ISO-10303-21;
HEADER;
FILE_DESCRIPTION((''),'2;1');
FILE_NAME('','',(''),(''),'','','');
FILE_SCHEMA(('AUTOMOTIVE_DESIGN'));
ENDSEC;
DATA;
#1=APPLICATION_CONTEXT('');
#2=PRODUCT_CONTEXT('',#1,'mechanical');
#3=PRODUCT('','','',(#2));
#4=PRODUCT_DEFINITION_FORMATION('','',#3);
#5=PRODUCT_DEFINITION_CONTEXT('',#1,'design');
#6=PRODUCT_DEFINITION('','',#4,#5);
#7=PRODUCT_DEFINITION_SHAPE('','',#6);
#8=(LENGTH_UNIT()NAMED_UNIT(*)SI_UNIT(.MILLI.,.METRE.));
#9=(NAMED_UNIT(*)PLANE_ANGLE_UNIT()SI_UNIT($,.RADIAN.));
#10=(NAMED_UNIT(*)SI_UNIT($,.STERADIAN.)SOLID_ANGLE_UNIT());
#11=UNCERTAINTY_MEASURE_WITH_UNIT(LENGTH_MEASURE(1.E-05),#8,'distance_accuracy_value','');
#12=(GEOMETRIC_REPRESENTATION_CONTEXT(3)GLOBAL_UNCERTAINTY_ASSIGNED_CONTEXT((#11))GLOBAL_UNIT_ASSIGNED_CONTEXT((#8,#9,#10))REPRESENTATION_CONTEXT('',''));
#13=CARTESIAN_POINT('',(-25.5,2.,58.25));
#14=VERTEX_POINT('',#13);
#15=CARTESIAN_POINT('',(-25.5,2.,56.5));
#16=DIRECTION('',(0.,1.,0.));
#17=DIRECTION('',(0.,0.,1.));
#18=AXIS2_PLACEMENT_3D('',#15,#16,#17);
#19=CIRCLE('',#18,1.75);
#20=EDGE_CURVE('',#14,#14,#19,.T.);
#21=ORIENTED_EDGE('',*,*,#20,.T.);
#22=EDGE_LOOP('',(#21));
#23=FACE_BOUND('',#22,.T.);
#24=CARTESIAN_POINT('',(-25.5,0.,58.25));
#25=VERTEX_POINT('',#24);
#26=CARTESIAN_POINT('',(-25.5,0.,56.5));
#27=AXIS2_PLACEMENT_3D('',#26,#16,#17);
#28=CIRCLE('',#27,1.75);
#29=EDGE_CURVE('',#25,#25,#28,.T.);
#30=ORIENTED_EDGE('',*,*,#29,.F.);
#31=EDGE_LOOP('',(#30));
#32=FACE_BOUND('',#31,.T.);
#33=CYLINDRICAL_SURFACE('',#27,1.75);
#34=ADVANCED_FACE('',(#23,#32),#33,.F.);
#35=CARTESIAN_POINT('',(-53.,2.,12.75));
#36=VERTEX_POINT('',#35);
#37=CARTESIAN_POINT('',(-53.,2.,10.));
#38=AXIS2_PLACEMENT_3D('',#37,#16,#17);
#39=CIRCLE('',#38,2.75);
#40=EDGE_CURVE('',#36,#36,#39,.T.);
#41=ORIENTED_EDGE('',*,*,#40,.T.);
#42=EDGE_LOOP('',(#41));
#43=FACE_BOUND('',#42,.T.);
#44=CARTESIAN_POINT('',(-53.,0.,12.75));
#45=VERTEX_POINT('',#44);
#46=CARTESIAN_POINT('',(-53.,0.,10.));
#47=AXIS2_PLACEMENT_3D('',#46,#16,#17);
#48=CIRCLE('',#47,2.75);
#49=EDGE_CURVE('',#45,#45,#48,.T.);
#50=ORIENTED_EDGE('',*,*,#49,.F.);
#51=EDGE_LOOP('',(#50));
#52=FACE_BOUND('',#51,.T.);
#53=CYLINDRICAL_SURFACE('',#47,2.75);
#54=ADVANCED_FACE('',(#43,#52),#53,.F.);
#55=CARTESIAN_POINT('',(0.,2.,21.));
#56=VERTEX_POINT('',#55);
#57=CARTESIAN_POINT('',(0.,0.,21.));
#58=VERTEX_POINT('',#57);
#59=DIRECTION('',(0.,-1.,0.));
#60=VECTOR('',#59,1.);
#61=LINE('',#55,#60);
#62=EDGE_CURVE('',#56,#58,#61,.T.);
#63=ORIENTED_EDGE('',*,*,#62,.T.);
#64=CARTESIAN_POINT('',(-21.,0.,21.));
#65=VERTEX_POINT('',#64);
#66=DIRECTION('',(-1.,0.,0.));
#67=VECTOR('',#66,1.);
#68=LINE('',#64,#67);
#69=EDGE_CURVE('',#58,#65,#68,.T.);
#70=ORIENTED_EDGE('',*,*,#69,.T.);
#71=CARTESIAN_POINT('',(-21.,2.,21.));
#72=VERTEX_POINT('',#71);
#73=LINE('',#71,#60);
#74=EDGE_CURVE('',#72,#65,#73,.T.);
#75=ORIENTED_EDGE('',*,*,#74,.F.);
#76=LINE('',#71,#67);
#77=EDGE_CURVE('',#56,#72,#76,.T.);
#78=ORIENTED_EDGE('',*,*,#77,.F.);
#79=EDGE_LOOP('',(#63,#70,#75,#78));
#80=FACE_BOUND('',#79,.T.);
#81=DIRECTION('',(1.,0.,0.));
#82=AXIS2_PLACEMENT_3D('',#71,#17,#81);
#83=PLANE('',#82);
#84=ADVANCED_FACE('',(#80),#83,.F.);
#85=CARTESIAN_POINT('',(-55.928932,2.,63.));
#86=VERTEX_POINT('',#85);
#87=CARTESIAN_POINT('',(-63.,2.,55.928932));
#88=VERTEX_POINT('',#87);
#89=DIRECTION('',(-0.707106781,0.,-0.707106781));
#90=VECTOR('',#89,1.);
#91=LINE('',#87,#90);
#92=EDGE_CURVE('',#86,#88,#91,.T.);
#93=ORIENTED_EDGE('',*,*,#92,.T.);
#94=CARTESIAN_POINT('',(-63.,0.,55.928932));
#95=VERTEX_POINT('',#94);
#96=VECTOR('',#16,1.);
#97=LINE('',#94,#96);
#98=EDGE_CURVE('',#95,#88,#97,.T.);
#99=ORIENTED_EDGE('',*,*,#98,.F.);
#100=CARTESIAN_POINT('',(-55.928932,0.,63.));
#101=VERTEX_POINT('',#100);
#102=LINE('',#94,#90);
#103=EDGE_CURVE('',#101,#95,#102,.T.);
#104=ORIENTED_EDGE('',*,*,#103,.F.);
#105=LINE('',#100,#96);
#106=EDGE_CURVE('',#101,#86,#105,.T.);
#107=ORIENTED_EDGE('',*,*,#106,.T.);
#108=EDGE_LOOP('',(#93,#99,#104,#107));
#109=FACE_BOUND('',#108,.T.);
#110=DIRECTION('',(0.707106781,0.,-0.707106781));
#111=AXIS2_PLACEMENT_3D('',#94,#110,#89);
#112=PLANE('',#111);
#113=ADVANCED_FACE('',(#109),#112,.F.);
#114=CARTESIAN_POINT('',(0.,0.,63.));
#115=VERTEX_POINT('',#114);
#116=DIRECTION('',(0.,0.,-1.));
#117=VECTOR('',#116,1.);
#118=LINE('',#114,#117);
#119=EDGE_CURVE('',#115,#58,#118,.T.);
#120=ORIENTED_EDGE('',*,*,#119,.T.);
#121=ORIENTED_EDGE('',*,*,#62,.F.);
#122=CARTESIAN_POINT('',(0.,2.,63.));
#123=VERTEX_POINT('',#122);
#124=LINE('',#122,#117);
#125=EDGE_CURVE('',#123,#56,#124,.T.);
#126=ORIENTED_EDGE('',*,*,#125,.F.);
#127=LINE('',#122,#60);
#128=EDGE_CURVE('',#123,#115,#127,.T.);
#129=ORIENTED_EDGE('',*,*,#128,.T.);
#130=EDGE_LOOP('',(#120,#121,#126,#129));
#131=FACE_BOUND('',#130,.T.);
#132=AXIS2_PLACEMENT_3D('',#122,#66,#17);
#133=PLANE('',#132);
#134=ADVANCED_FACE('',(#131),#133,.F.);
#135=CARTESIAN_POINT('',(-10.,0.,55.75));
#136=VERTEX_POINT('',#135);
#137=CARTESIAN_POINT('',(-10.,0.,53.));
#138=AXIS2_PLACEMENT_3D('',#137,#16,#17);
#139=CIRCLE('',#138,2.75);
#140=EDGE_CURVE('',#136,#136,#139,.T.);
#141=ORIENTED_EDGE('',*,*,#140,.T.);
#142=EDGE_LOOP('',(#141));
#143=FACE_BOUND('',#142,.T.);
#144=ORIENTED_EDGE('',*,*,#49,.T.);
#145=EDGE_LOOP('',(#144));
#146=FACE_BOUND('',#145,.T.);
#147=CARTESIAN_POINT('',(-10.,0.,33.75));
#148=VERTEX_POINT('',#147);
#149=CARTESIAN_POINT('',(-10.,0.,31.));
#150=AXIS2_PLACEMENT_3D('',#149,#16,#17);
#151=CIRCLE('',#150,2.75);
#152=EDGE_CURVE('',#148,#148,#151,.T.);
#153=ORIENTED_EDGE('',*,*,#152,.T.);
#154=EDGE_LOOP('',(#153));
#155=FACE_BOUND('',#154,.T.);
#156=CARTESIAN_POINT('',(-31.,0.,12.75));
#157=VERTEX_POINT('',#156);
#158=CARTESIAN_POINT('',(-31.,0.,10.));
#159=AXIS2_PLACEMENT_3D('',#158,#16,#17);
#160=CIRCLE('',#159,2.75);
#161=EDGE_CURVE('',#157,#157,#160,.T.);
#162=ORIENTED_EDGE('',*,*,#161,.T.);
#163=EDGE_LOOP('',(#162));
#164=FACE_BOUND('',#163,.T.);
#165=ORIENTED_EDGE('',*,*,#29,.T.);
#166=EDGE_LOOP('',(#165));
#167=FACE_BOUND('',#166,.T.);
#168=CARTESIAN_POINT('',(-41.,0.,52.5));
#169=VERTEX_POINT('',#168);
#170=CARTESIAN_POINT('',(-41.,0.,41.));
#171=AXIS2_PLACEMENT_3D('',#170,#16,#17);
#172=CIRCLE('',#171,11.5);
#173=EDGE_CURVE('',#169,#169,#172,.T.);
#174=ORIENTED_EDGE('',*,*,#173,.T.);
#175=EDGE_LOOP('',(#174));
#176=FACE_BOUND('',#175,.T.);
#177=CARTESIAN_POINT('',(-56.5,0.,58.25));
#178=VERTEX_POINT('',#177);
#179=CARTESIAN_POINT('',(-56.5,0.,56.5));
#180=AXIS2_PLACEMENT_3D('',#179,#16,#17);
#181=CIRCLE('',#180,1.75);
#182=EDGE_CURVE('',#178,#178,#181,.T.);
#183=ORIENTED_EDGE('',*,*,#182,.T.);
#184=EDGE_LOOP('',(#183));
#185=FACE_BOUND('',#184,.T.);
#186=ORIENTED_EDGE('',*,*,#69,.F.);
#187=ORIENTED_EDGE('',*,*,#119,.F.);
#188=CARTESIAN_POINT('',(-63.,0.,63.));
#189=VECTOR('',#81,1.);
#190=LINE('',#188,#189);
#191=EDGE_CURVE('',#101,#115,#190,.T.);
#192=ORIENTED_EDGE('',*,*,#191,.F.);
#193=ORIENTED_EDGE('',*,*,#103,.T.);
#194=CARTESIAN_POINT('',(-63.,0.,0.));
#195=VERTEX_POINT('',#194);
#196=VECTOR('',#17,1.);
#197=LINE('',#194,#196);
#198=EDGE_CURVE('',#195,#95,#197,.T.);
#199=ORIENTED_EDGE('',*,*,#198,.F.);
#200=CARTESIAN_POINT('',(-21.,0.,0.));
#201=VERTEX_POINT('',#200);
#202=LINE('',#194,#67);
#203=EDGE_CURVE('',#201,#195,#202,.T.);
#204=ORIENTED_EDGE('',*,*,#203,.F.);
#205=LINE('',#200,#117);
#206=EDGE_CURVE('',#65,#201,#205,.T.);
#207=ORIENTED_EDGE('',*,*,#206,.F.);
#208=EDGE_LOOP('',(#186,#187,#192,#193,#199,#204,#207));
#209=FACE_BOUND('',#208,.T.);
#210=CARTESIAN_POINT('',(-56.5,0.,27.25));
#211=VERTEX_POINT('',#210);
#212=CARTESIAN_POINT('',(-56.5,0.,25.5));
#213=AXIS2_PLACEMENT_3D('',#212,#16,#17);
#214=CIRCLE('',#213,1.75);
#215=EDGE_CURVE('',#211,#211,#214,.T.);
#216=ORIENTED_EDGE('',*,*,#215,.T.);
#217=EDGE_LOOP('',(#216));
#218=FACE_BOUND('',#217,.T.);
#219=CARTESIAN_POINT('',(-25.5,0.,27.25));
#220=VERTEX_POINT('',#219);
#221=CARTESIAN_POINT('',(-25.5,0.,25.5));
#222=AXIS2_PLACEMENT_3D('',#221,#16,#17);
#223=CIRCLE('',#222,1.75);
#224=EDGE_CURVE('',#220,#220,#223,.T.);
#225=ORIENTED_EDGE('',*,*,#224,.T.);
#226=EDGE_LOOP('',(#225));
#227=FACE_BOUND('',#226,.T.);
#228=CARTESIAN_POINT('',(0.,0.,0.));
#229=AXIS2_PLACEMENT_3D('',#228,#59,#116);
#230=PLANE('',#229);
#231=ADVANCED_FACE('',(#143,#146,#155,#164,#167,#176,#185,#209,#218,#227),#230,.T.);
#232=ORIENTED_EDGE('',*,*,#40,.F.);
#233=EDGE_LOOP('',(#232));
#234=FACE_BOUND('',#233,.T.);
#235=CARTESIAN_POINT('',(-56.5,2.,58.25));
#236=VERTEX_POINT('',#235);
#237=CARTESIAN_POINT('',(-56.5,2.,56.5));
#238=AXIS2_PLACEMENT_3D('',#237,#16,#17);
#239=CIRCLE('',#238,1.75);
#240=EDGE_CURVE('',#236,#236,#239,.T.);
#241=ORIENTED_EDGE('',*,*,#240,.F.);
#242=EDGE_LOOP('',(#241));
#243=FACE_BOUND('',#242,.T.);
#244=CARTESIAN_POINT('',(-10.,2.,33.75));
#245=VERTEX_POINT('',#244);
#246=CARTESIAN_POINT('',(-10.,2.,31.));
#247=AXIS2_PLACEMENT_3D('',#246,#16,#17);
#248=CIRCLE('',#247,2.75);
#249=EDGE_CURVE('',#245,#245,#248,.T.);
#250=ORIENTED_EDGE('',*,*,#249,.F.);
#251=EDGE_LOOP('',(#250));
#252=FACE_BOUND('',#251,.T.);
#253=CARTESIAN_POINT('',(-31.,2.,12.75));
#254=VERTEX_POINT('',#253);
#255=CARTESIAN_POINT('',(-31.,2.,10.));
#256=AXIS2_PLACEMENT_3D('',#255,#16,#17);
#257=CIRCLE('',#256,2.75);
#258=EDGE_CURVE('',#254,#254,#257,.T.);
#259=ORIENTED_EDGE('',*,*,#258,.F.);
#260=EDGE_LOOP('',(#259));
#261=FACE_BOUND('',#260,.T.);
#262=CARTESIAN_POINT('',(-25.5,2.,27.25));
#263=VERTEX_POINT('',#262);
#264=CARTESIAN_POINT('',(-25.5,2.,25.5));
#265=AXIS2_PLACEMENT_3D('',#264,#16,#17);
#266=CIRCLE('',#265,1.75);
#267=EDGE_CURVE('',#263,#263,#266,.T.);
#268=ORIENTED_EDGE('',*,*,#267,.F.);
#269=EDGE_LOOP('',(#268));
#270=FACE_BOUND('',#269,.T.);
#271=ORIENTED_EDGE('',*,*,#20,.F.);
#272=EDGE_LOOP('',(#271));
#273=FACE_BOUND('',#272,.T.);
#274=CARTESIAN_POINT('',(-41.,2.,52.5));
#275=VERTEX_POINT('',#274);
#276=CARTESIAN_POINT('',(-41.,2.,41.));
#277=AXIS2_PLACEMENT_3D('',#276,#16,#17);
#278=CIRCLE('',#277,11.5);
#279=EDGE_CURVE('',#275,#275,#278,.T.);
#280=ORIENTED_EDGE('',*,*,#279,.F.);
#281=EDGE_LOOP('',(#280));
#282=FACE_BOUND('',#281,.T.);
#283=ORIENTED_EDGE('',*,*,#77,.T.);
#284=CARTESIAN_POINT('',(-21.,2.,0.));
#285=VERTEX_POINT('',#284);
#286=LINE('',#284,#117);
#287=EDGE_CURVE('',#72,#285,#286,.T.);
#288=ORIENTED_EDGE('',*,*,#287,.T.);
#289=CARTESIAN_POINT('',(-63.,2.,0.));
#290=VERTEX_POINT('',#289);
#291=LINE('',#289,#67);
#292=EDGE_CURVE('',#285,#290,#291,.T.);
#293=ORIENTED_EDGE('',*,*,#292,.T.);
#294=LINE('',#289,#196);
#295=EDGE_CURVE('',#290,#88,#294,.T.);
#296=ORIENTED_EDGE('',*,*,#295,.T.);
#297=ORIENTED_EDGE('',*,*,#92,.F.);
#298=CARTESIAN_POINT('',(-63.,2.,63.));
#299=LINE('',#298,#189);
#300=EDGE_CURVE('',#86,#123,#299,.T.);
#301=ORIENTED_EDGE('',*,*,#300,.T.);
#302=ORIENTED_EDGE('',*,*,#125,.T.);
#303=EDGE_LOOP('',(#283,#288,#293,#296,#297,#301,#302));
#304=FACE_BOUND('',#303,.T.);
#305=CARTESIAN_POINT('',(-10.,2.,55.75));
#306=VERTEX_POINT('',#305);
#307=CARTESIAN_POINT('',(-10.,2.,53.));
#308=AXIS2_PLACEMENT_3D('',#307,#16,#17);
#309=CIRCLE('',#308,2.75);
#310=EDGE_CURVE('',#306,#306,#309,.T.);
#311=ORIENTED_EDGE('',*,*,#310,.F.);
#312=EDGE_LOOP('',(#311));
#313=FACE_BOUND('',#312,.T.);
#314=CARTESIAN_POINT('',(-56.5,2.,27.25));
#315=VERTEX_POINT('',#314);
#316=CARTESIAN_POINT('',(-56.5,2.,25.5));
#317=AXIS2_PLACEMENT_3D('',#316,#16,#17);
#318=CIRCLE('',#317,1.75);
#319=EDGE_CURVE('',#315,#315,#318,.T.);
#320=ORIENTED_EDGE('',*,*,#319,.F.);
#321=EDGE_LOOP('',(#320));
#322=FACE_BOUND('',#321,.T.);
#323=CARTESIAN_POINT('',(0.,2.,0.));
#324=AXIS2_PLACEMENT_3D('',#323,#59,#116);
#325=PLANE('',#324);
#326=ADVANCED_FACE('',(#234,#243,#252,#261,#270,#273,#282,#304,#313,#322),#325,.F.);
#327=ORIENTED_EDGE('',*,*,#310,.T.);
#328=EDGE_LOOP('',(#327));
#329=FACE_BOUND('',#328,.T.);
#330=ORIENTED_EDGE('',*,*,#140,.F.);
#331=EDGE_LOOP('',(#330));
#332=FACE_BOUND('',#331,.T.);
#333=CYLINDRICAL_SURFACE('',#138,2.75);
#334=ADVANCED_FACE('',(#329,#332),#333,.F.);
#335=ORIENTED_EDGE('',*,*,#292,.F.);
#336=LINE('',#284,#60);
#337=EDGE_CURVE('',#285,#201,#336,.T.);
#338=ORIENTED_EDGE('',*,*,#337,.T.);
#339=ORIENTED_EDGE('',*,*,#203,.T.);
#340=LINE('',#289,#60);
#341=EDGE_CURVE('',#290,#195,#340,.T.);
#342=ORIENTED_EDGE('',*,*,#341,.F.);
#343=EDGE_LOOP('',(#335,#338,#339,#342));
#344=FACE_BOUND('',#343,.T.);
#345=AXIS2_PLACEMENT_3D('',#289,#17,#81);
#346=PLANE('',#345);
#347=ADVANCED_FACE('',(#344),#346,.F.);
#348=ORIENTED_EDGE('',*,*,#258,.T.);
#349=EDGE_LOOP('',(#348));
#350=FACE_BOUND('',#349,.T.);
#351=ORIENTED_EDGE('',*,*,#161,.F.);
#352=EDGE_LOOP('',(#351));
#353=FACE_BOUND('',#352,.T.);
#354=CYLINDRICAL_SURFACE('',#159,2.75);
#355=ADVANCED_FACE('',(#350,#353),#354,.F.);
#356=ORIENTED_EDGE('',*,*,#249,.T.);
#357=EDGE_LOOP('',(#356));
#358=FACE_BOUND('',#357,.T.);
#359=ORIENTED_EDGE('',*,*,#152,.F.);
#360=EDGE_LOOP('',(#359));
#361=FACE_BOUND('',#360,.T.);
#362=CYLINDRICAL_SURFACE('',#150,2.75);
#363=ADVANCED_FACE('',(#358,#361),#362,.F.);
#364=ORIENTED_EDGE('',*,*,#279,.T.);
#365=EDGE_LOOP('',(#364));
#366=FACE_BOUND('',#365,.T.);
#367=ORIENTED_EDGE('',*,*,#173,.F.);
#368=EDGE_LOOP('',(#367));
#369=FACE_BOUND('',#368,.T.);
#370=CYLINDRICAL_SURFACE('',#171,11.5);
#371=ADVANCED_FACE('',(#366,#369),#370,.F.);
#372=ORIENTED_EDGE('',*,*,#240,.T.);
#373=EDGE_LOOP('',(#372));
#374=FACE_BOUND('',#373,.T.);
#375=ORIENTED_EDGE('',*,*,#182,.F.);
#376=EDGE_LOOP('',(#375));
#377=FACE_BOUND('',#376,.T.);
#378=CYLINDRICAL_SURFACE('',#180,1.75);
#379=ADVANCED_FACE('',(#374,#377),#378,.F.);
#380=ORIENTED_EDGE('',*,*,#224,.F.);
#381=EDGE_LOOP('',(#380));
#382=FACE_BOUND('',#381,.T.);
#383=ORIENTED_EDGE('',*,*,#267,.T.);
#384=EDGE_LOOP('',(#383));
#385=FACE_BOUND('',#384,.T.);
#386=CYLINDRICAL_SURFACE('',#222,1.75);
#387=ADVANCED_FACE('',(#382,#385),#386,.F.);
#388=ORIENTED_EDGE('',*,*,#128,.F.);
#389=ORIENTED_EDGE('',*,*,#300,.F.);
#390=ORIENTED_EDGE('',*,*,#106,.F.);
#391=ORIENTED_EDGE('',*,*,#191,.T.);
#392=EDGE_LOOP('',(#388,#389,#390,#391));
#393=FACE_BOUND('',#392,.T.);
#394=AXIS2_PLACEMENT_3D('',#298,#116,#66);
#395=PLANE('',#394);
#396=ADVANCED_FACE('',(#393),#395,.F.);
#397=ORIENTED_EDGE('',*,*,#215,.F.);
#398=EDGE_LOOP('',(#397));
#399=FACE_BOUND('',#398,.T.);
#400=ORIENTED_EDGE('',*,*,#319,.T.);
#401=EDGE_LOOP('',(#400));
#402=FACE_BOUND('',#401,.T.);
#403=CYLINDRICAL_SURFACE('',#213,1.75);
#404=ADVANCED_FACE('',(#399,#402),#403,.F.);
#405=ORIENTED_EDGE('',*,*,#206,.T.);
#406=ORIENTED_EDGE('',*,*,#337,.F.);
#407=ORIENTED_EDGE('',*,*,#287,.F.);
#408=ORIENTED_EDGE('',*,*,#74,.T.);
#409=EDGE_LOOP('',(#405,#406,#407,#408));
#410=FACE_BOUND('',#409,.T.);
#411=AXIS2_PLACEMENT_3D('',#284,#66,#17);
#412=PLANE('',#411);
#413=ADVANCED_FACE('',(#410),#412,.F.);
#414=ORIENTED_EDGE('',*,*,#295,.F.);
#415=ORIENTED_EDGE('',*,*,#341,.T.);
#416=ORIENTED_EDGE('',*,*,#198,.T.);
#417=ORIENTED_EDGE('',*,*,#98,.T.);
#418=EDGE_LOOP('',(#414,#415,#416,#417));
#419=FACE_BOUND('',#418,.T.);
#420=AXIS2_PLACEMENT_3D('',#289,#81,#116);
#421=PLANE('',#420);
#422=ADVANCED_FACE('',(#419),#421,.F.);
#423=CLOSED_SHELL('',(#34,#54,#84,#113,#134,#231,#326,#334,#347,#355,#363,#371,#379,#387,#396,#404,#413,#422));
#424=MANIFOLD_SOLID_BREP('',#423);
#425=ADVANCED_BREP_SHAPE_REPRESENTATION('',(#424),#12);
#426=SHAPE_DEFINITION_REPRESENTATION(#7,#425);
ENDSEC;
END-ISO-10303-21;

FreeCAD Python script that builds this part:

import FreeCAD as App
import Part
import Sketcher

doc = App.newDocument("Part")
body = doc.addObject("PartDesign::Body", "Body")

# Sketch on XZ plane
sketch1 = body.newObject("Sketcher::SketchObject", "Sketch")
sketch1.AttachmentSupport = (doc.getObject("XZ_Plane"), [""])
sketch1.MapMode = "FlatFace"
sketch1.addGeometry([
    Part.LineSegment(App.Vector(-63, 0, 0), App.Vector(-63, 63, 0)),  # 0
    Part.LineSegment(App.Vector(-63, 63, 0), App.Vector(0, 63, 0)),  # 1
    Part.LineSegment(App.Vector(0, 63, 0), App.Vector(0, 21, 0)),  # 2
    Part.LineSegment(App.Vector(0, 21, 0), App.Vector(-21, 21, 0)),  # 3
    Part.LineSegment(App.Vector(-21, 21, 0), App.Vector(-21, 0, 0)),  # 4
    Part.LineSegment(App.Vector(-21, 0, 0), App.Vector(-63, 0, 0)),  # 5
], False)
sketch1.addConstraint([
    Sketcher.Constraint("Coincident", 0, 2, 1, 1),
    Sketcher.Constraint("Coincident", 1, 2, 2, 1),
    Sketcher.Constraint("Coincident", 2, 2, 3, 1),
    Sketcher.Constraint("Coincident", 3, 2, 4, 1),
    Sketcher.Constraint("Coincident", 4, 2, 5, 1),
    Sketcher.Constraint("Coincident", 5, 2, 0, 1),
    Sketcher.Constraint("Vertical", 0),
    Sketcher.Constraint("Horizontal", 1),
    Sketcher.Constraint("Vertical", 2),
    Sketcher.Constraint("Horizontal", 3),
    Sketcher.Constraint("Vertical", 4),
    Sketcher.Constraint("Horizontal", 5),
    Sketcher.Constraint("PointOnObject", 1, 2, -2),
    Sketcher.Constraint("PointOnObject", 4, 2, -1),
    Sketcher.Constraint("Equal", 1, 0),
    Sketcher.Constraint("Equal", 5, 2),
    Sketcher.Constraint("DistanceX", 1, 1, 1, 2, 63.0),
    Sketcher.Constraint("DistanceX", 3, 2, 3, 1, 21.0),
])
pad1 = body.newObject("PartDesign::Pad", "Pad")
pad1.Profile = sketch1
pad1.Length = 2
pad1.Reversed = True

# Sketch on XZ plane
sketch2 = body.newObject("Sketcher::SketchObject", "Sketch001")
sketch2.AttachmentSupport = (doc.getObject("XZ_Plane"), [""])
sketch2.MapMode = "FlatFace"
sketch2.AttachmentOffset = App.Placement(App.Vector(0, 0, -2), App.Rotation())
sketch2.addGeometry([
    Part.Circle(App.Vector(-53, 10, 0), App.Vector(0, 0, 1), 2.75),  # 0
    Part.Circle(App.Vector(-56.5, 56.5, 0), App.Vector(0, 0, 1), 1.75),  # 1
    Part.Circle(App.Vector(-25.5, 56.5, 0), App.Vector(0, 0, 1), 1.75),  # 2
    Part.Circle(App.Vector(-25.5, 25.5, 0), App.Vector(0, 0, 1), 1.75),  # 3
    Part.Circle(App.Vector(-56.5, 25.5, 0), App.Vector(0, 0, 1), 1.75),  # 4
    Part.Circle(App.Vector(-41, 41, 0), App.Vector(0, 0, 1), 11.5),  # 5
    Part.Circle(App.Vector(-10, 53, 0), App.Vector(0, 0, 1), 2.75),  # 6
    Part.Circle(App.Vector(-10, 31, 0), App.Vector(0, 0, 1), 2.75),  # 7
    Part.Circle(App.Vector(-31, 10, 0), App.Vector(0, 0, 1), 2.75),  # 8
    Part.LineSegment(App.Vector(-63, 55.928932, 0), App.Vector(-63, 63, 0)),  # 9
    Part.LineSegment(App.Vector(-63, 63, 0), App.Vector(-55.928932, 63, 0)),  # 10
    Part.LineSegment(App.Vector(-55.928932, 63, 0), App.Vector(-63, 55.928932, 0)),  # 11
], False)
sketch2.addConstraint([
    Sketcher.Constraint("Coincident", 9, 2, 10, 1),
    Sketcher.Constraint("Coincident", 10, 2, 11, 1),
    Sketcher.Constraint("Coincident", 11, 2, 9, 1),
    Sketcher.Constraint("Vertical", 9),
    Sketcher.Constraint("Horizontal", 10),
    Sketcher.Constraint("Equal", 1, 2),
    Sketcher.Constraint("Equal", 2, 3),
    Sketcher.Constraint("Equal", 3, 4),
    Sketcher.Constraint("Equal", 0, 6),
    Sketcher.Constraint("Equal", 6, 7),
    Sketcher.Constraint("Equal", 7, 8),
    Sketcher.Constraint("Horizontal", 1, 3, 2, 3),
    Sketcher.Constraint("Horizontal", 3, 3, 4, 3),
    Sketcher.Constraint("Horizontal", 0, 3, 8, 3),
    Sketcher.Constraint("Vertical", 2, 3, 3, 3),
    Sketcher.Constraint("Vertical", 1, 3, 4, 3),
    Sketcher.Constraint("Vertical", 6, 3, 7, 3),
    Sketcher.Constraint("Equal", 10, 9),
    Sketcher.Constraint("Diameter", 5, 23.0),
    Sketcher.Constraint("Diameter", 0, 5.5),
    Sketcher.Constraint("Diameter", 1, 3.5),
    Sketcher.Constraint("Distance", 11, 10.0),
    Sketcher.Constraint("DistanceX", 0, 3, -1, 1, 53.0),
    Sketcher.Constraint("DistanceY", -1, 1, 0, 3, 10.0),
    Sketcher.Constraint("DistanceX", 5, 3, -1, 1, 41.0),
    Sketcher.Constraint("DistanceY", -1, 1, 5, 3, 41.0),
    Sketcher.Constraint("DistanceX", 6, 3, -1, 1, 10.0),
    Sketcher.Constraint("DistanceY", -1, 1, 6, 3, 53.0),
    Sketcher.Constraint("DistanceY", -1, 1, 7, 3, 31.0),
    Sketcher.Constraint("DistanceX", 8, 3, -1, 1, 31.0),
    Sketcher.Constraint("DistanceX", 9, 2, -1, 1, 63.0),
    Sketcher.Constraint("DistanceY", -1, 1, 9, 2, 63.0),
    Sketcher.Constraint("DistanceX", 1, 3, 2, 3, 31.0),
    Sketcher.Constraint("DistanceY", 3, 3, 2, 3, 31.0),
    Sketcher.Constraint("DistanceX", 1, 3, -1, 1, 56.5),
    Sketcher.Constraint("DistanceY", -1, 1, 1, 3, 56.5),
])
pocket1 = body.newObject("PartDesign::Pocket", "Pocket")
pocket1.Profile = sketch2
pocket1.Type = "ThroughAll"
pocket1.Reversed = True

doc.recompute()
